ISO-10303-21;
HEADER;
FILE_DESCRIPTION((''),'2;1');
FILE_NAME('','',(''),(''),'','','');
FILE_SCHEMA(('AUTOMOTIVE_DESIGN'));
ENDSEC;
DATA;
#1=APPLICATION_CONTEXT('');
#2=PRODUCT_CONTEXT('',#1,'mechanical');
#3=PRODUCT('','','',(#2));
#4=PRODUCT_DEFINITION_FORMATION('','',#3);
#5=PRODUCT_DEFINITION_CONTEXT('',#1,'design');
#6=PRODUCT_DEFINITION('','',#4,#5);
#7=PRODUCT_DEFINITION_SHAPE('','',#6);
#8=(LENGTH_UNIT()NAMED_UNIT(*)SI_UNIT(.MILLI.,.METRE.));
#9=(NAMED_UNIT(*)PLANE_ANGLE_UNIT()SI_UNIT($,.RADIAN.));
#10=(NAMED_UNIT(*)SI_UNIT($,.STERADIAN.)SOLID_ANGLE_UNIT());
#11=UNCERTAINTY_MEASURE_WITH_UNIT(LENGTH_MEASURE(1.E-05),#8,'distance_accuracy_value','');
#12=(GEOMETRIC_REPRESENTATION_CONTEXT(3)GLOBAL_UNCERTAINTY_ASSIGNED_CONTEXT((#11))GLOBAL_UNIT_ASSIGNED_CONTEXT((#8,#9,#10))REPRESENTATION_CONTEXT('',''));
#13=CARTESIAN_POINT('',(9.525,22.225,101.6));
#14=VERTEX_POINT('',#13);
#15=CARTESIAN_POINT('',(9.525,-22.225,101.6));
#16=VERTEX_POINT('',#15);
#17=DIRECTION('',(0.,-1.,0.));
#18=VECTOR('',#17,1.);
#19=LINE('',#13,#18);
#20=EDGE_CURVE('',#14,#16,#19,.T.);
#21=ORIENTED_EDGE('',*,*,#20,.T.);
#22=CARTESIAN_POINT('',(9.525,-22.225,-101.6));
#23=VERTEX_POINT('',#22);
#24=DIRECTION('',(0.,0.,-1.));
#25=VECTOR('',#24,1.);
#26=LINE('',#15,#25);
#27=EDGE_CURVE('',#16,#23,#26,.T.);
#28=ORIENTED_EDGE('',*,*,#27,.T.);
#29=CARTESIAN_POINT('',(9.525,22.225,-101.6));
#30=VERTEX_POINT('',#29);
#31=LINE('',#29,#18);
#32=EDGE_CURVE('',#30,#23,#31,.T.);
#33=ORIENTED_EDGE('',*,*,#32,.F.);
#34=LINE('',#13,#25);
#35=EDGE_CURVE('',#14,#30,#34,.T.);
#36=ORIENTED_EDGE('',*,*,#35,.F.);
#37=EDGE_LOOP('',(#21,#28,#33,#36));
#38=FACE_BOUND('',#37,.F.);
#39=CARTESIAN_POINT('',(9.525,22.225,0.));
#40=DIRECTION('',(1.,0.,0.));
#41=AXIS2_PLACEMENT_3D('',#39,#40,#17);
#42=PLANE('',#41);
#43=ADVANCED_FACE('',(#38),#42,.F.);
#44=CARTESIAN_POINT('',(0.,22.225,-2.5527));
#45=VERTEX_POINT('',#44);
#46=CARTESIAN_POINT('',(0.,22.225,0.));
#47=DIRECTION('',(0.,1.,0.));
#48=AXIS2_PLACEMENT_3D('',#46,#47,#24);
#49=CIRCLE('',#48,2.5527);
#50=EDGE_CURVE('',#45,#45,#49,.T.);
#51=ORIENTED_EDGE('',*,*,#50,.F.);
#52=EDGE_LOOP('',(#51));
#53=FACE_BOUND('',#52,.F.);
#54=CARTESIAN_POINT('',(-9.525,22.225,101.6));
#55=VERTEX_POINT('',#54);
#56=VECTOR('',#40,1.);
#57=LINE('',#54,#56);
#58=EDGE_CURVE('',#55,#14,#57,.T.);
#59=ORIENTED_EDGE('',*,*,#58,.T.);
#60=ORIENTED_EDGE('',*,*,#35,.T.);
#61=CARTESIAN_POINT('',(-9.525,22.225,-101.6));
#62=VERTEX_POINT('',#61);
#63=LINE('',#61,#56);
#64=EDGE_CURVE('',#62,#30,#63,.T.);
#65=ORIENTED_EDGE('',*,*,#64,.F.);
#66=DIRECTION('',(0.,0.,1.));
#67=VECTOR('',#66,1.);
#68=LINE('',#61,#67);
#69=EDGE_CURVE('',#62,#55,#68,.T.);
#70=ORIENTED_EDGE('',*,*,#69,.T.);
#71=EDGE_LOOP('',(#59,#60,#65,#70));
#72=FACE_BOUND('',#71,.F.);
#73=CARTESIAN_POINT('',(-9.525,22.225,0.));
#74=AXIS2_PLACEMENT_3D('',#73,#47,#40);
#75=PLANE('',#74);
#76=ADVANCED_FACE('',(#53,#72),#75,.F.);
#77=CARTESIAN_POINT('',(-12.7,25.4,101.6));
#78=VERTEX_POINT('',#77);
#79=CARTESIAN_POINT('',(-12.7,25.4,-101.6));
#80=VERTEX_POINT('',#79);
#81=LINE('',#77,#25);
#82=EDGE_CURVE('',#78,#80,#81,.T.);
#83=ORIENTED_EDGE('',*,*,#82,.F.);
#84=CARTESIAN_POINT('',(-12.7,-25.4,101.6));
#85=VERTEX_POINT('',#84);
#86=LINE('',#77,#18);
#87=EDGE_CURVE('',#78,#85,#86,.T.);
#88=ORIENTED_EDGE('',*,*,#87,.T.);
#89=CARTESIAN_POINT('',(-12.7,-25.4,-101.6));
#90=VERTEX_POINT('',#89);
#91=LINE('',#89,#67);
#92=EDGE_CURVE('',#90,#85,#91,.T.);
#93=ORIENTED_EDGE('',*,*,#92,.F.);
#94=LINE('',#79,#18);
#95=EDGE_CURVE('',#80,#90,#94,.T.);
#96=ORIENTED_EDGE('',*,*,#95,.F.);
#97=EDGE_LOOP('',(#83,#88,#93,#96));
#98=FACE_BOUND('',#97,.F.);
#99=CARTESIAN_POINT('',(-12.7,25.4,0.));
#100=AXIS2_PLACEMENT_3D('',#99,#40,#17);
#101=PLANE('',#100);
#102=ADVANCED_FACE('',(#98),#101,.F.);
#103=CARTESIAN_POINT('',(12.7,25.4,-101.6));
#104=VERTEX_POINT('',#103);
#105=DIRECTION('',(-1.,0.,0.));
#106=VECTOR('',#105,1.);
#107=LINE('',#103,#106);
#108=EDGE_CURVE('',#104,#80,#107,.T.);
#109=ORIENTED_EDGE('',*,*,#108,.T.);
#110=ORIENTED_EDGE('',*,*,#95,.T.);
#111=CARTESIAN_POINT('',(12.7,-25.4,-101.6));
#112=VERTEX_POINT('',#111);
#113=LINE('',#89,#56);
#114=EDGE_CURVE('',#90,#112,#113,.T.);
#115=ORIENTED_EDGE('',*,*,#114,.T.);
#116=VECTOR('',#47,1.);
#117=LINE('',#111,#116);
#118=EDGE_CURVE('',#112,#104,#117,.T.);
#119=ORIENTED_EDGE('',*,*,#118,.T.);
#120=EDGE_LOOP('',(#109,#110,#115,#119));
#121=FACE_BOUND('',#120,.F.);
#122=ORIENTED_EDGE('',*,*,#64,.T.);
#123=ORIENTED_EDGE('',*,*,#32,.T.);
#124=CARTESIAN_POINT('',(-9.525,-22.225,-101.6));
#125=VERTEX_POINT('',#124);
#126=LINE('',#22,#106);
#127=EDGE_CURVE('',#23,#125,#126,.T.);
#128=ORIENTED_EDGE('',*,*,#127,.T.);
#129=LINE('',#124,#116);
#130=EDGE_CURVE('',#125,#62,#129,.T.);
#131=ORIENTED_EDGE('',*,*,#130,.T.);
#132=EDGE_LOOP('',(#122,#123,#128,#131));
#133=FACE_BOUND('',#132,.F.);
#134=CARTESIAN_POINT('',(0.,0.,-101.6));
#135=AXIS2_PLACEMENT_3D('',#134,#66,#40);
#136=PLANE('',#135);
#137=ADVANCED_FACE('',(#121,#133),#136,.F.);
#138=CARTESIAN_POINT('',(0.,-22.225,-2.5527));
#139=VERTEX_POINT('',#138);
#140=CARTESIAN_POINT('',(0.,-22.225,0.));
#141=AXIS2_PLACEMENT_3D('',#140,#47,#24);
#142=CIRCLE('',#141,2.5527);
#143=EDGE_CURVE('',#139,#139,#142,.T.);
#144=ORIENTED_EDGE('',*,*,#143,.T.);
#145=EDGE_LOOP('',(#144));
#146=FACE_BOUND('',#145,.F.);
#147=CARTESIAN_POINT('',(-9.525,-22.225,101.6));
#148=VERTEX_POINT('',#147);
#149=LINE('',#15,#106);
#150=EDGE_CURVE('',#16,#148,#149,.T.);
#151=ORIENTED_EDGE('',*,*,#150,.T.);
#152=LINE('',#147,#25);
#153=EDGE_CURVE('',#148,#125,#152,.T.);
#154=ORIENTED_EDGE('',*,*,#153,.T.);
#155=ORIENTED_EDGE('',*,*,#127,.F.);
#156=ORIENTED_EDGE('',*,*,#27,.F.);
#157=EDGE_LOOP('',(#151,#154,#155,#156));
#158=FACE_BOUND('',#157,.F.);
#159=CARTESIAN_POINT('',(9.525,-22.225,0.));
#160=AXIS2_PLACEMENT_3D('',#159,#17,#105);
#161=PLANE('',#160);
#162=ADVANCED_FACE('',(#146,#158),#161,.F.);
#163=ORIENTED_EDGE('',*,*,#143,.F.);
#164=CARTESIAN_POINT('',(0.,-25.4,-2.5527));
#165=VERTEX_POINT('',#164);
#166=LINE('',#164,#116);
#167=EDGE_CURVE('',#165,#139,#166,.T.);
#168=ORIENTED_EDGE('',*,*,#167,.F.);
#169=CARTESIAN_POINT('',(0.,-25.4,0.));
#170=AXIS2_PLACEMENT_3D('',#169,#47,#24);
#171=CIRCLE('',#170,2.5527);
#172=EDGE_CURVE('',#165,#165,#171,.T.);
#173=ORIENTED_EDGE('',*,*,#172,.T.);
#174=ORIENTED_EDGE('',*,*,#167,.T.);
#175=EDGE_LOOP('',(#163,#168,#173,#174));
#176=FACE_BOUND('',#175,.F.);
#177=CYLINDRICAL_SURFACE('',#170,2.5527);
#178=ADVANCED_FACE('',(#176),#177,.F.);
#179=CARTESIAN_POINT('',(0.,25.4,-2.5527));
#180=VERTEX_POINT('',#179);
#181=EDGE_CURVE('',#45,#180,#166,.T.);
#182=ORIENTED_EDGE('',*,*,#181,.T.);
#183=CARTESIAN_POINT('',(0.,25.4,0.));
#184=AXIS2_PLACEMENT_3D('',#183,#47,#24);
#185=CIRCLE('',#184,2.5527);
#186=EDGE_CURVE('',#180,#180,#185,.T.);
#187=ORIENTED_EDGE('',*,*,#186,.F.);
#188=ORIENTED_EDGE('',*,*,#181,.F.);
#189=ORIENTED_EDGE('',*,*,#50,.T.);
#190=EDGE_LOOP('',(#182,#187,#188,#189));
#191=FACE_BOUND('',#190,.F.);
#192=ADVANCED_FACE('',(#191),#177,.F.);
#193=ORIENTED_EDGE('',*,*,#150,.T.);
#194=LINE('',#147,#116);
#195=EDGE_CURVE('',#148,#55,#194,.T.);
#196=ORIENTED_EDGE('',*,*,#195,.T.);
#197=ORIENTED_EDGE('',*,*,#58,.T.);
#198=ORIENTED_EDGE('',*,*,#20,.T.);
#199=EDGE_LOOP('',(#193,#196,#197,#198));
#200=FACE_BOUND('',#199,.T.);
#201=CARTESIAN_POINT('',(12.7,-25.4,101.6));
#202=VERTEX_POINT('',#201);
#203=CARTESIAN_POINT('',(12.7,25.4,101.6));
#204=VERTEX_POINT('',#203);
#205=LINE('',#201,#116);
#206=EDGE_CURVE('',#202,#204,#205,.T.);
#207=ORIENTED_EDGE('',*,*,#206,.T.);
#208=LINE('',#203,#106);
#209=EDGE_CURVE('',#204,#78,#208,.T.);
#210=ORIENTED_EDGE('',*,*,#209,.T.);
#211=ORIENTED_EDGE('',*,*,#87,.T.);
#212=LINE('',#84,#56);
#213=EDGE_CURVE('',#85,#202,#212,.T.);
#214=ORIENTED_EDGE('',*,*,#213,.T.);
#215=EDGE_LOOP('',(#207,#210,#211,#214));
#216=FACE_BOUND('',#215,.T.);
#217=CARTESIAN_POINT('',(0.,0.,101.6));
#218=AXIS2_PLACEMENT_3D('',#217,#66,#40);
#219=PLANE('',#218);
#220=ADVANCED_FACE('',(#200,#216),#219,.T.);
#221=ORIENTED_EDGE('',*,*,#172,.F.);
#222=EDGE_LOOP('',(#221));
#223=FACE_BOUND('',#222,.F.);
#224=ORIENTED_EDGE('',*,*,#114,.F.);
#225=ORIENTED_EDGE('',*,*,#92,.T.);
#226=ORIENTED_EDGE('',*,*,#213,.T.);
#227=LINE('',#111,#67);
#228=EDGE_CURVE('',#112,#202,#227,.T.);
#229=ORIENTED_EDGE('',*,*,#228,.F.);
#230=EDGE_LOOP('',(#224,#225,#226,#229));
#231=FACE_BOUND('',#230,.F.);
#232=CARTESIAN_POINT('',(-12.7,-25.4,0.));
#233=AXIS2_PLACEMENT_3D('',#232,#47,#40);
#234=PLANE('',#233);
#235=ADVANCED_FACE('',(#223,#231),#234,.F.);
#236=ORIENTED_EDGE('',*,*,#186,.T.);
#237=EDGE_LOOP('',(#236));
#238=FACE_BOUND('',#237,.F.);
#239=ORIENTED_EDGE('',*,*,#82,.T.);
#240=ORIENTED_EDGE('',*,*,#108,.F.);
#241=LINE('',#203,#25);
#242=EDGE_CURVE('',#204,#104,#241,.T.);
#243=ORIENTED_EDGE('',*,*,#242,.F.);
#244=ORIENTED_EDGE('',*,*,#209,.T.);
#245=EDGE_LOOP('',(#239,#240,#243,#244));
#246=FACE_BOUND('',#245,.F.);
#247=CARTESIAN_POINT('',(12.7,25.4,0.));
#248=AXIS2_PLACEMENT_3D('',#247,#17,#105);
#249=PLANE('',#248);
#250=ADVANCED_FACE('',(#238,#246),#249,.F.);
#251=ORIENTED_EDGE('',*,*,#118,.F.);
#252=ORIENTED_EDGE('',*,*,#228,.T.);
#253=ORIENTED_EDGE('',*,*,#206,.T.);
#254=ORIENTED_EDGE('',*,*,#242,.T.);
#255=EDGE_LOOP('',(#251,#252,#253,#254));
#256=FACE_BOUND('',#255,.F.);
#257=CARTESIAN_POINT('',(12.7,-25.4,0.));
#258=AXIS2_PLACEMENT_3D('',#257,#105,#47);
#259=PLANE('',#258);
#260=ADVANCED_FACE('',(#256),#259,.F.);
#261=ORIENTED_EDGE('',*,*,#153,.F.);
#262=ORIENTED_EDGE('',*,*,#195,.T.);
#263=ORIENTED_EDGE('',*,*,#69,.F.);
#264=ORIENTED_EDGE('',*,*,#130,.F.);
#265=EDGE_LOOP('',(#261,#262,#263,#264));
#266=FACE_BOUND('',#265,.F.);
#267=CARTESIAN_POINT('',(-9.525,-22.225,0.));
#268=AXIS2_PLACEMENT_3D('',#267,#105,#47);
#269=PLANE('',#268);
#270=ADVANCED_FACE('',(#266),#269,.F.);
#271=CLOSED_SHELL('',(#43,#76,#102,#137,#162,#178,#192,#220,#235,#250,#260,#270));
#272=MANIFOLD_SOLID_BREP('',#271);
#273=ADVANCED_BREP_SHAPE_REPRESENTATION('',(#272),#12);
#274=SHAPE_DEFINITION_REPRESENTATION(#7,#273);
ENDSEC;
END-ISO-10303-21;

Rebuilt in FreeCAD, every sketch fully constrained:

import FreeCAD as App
import Part
import Sketcher

V = App.Vector
Q = App.Units.Quantity


def add_polygon(sketch, points):
    """Adds a closed chain of lines whose ends are joined by coincident constraints."""
    first, n = sketch.GeometryCount, len(points)
    for a, b in zip(points, points[1:] + points[:1]):
        sketch.addGeometry(Part.LineSegment(App.Vector(*a, 0), App.Vector(*b, 0)), False)
    for i in range(n):
        sketch.addConstraint(Sketcher.Constraint("Coincident", first + i, 2, first + (i + 1) % n, 1))

doc = App.newDocument("Part")
params = doc.addObject("Spreadsheet::Sheet", "Params")
for row, (alias, value) in enumerate([
    ("sketch1_width", "1 in"),
    ("sketch1_height", "2 in"),
    ("pad1_length", "8 in"),
    ("sketch2_diameter", "0.201 in"),
    ("hole_diameter", "0.201 in"),
], start=1):
    params.set(f"A{row}", alias)
    params.set(f"B{row}", "=" + value)
    params.setAlias(f"B{row}", alias)

body = doc.addObject("PartDesign::Body", "Body")

# Sketch on XY plane
sketch1 = body.newObject("Sketcher::SketchObject", "Sketch")
sketch1.AttachmentSupport = (doc.getObject("XY_Plane"), [""])
sketch1.MapMode = "FlatFace"
add_polygon(sketch1, [(-13, 25), (-13, -25), (13, -25), (13, 25)])  # lines 0-3
add_polygon(sketch1, [(-10, -22), (-10, 22), (10, 22), (10, -22)])  # lines 4-7
sketch1.addConstraint(Sketcher.Constraint("Vertical", 0))
sketch1.addConstraint(Sketcher.Constraint("Horizontal", 1))
sketch1.addConstraint(Sketcher.Constraint("Vertical", 2))
sketch1.addConstraint(Sketcher.Constraint("Horizontal", 3))
sketch1.addConstraint(Sketcher.Constraint("Vertical", 4))
sketch1.addConstraint(Sketcher.Constraint("Horizontal", 5))
sketch1.addConstraint(Sketcher.Constraint("Vertical", 6))
sketch1.addConstraint(Sketcher.Constraint("Horizontal", 7))
sketch1.addConstraint(Sketcher.Constraint("Symmetric", 0, 2, 2, 2, -1, 1))
sketch1.addConstraint(Sketcher.Constraint("Symmetric", 4, 2, 6, 2, -1, 1))
sketch1.addConstraint(Sketcher.Constraint("DistanceX", 1, 1, 1, 2, Q("1 in")))
sketch1.addConstraint(Sketcher.Constraint("DistanceY", 0, 2, 0, 1, Q("2 in")))
sketch1.addConstraint(Sketcher.Constraint("DistanceX", 3, 2, 4, 2, Q("0.125 in")))
sketch1.addConstraint(Sketcher.Constraint("DistanceY", 4, 2, 3, 2, Q("0.125 in")))
sketch1.setExpression("Constraints[18]", "Params.sketch1_width")
sketch1.setExpression("Constraints[19]", "Params.sketch1_height")
pad1 = body.newObject("PartDesign::Pad", "Pad")
pad1.Profile = sketch1
pad1.setExpression("Length", "Params.pad1_length")
pad1.Midplane = True

# Sketch on XZ plane
sketch2 = body.newObject("Sketcher::SketchObject", "Sketch001")
sketch2.AttachmentSupport = (doc.getObject("XZ_Plane"), [""])
sketch2.MapMode = "FlatFace"
sketch2.AttachmentOffset = App.Placement(V(0, 0, 1 * 25.4), App.Rotation())
sketch2.addGeometry(Part.Circle(V(0, 0, 0), V(0, 0, 1), 2.6), False)
sketch2.addConstraint(Sketcher.Constraint("Coincident", 0, 3, -1, 1))
sketch2.addConstraint(Sketcher.Constraint("Diameter", 0, Q("0.201 in")))
sketch2.setExpression("Constraints[1]", "Params.sketch2_diameter")
doc.recompute()
hole = body.newObject("PartDesign::Hole", "Hole")
hole.Profile = sketch2
hole.ThreadType = "None"
hole.setExpression("Diameter", "Params.hole_diameter")
hole.DepthType = "ThroughAll"

doc.recompute()
